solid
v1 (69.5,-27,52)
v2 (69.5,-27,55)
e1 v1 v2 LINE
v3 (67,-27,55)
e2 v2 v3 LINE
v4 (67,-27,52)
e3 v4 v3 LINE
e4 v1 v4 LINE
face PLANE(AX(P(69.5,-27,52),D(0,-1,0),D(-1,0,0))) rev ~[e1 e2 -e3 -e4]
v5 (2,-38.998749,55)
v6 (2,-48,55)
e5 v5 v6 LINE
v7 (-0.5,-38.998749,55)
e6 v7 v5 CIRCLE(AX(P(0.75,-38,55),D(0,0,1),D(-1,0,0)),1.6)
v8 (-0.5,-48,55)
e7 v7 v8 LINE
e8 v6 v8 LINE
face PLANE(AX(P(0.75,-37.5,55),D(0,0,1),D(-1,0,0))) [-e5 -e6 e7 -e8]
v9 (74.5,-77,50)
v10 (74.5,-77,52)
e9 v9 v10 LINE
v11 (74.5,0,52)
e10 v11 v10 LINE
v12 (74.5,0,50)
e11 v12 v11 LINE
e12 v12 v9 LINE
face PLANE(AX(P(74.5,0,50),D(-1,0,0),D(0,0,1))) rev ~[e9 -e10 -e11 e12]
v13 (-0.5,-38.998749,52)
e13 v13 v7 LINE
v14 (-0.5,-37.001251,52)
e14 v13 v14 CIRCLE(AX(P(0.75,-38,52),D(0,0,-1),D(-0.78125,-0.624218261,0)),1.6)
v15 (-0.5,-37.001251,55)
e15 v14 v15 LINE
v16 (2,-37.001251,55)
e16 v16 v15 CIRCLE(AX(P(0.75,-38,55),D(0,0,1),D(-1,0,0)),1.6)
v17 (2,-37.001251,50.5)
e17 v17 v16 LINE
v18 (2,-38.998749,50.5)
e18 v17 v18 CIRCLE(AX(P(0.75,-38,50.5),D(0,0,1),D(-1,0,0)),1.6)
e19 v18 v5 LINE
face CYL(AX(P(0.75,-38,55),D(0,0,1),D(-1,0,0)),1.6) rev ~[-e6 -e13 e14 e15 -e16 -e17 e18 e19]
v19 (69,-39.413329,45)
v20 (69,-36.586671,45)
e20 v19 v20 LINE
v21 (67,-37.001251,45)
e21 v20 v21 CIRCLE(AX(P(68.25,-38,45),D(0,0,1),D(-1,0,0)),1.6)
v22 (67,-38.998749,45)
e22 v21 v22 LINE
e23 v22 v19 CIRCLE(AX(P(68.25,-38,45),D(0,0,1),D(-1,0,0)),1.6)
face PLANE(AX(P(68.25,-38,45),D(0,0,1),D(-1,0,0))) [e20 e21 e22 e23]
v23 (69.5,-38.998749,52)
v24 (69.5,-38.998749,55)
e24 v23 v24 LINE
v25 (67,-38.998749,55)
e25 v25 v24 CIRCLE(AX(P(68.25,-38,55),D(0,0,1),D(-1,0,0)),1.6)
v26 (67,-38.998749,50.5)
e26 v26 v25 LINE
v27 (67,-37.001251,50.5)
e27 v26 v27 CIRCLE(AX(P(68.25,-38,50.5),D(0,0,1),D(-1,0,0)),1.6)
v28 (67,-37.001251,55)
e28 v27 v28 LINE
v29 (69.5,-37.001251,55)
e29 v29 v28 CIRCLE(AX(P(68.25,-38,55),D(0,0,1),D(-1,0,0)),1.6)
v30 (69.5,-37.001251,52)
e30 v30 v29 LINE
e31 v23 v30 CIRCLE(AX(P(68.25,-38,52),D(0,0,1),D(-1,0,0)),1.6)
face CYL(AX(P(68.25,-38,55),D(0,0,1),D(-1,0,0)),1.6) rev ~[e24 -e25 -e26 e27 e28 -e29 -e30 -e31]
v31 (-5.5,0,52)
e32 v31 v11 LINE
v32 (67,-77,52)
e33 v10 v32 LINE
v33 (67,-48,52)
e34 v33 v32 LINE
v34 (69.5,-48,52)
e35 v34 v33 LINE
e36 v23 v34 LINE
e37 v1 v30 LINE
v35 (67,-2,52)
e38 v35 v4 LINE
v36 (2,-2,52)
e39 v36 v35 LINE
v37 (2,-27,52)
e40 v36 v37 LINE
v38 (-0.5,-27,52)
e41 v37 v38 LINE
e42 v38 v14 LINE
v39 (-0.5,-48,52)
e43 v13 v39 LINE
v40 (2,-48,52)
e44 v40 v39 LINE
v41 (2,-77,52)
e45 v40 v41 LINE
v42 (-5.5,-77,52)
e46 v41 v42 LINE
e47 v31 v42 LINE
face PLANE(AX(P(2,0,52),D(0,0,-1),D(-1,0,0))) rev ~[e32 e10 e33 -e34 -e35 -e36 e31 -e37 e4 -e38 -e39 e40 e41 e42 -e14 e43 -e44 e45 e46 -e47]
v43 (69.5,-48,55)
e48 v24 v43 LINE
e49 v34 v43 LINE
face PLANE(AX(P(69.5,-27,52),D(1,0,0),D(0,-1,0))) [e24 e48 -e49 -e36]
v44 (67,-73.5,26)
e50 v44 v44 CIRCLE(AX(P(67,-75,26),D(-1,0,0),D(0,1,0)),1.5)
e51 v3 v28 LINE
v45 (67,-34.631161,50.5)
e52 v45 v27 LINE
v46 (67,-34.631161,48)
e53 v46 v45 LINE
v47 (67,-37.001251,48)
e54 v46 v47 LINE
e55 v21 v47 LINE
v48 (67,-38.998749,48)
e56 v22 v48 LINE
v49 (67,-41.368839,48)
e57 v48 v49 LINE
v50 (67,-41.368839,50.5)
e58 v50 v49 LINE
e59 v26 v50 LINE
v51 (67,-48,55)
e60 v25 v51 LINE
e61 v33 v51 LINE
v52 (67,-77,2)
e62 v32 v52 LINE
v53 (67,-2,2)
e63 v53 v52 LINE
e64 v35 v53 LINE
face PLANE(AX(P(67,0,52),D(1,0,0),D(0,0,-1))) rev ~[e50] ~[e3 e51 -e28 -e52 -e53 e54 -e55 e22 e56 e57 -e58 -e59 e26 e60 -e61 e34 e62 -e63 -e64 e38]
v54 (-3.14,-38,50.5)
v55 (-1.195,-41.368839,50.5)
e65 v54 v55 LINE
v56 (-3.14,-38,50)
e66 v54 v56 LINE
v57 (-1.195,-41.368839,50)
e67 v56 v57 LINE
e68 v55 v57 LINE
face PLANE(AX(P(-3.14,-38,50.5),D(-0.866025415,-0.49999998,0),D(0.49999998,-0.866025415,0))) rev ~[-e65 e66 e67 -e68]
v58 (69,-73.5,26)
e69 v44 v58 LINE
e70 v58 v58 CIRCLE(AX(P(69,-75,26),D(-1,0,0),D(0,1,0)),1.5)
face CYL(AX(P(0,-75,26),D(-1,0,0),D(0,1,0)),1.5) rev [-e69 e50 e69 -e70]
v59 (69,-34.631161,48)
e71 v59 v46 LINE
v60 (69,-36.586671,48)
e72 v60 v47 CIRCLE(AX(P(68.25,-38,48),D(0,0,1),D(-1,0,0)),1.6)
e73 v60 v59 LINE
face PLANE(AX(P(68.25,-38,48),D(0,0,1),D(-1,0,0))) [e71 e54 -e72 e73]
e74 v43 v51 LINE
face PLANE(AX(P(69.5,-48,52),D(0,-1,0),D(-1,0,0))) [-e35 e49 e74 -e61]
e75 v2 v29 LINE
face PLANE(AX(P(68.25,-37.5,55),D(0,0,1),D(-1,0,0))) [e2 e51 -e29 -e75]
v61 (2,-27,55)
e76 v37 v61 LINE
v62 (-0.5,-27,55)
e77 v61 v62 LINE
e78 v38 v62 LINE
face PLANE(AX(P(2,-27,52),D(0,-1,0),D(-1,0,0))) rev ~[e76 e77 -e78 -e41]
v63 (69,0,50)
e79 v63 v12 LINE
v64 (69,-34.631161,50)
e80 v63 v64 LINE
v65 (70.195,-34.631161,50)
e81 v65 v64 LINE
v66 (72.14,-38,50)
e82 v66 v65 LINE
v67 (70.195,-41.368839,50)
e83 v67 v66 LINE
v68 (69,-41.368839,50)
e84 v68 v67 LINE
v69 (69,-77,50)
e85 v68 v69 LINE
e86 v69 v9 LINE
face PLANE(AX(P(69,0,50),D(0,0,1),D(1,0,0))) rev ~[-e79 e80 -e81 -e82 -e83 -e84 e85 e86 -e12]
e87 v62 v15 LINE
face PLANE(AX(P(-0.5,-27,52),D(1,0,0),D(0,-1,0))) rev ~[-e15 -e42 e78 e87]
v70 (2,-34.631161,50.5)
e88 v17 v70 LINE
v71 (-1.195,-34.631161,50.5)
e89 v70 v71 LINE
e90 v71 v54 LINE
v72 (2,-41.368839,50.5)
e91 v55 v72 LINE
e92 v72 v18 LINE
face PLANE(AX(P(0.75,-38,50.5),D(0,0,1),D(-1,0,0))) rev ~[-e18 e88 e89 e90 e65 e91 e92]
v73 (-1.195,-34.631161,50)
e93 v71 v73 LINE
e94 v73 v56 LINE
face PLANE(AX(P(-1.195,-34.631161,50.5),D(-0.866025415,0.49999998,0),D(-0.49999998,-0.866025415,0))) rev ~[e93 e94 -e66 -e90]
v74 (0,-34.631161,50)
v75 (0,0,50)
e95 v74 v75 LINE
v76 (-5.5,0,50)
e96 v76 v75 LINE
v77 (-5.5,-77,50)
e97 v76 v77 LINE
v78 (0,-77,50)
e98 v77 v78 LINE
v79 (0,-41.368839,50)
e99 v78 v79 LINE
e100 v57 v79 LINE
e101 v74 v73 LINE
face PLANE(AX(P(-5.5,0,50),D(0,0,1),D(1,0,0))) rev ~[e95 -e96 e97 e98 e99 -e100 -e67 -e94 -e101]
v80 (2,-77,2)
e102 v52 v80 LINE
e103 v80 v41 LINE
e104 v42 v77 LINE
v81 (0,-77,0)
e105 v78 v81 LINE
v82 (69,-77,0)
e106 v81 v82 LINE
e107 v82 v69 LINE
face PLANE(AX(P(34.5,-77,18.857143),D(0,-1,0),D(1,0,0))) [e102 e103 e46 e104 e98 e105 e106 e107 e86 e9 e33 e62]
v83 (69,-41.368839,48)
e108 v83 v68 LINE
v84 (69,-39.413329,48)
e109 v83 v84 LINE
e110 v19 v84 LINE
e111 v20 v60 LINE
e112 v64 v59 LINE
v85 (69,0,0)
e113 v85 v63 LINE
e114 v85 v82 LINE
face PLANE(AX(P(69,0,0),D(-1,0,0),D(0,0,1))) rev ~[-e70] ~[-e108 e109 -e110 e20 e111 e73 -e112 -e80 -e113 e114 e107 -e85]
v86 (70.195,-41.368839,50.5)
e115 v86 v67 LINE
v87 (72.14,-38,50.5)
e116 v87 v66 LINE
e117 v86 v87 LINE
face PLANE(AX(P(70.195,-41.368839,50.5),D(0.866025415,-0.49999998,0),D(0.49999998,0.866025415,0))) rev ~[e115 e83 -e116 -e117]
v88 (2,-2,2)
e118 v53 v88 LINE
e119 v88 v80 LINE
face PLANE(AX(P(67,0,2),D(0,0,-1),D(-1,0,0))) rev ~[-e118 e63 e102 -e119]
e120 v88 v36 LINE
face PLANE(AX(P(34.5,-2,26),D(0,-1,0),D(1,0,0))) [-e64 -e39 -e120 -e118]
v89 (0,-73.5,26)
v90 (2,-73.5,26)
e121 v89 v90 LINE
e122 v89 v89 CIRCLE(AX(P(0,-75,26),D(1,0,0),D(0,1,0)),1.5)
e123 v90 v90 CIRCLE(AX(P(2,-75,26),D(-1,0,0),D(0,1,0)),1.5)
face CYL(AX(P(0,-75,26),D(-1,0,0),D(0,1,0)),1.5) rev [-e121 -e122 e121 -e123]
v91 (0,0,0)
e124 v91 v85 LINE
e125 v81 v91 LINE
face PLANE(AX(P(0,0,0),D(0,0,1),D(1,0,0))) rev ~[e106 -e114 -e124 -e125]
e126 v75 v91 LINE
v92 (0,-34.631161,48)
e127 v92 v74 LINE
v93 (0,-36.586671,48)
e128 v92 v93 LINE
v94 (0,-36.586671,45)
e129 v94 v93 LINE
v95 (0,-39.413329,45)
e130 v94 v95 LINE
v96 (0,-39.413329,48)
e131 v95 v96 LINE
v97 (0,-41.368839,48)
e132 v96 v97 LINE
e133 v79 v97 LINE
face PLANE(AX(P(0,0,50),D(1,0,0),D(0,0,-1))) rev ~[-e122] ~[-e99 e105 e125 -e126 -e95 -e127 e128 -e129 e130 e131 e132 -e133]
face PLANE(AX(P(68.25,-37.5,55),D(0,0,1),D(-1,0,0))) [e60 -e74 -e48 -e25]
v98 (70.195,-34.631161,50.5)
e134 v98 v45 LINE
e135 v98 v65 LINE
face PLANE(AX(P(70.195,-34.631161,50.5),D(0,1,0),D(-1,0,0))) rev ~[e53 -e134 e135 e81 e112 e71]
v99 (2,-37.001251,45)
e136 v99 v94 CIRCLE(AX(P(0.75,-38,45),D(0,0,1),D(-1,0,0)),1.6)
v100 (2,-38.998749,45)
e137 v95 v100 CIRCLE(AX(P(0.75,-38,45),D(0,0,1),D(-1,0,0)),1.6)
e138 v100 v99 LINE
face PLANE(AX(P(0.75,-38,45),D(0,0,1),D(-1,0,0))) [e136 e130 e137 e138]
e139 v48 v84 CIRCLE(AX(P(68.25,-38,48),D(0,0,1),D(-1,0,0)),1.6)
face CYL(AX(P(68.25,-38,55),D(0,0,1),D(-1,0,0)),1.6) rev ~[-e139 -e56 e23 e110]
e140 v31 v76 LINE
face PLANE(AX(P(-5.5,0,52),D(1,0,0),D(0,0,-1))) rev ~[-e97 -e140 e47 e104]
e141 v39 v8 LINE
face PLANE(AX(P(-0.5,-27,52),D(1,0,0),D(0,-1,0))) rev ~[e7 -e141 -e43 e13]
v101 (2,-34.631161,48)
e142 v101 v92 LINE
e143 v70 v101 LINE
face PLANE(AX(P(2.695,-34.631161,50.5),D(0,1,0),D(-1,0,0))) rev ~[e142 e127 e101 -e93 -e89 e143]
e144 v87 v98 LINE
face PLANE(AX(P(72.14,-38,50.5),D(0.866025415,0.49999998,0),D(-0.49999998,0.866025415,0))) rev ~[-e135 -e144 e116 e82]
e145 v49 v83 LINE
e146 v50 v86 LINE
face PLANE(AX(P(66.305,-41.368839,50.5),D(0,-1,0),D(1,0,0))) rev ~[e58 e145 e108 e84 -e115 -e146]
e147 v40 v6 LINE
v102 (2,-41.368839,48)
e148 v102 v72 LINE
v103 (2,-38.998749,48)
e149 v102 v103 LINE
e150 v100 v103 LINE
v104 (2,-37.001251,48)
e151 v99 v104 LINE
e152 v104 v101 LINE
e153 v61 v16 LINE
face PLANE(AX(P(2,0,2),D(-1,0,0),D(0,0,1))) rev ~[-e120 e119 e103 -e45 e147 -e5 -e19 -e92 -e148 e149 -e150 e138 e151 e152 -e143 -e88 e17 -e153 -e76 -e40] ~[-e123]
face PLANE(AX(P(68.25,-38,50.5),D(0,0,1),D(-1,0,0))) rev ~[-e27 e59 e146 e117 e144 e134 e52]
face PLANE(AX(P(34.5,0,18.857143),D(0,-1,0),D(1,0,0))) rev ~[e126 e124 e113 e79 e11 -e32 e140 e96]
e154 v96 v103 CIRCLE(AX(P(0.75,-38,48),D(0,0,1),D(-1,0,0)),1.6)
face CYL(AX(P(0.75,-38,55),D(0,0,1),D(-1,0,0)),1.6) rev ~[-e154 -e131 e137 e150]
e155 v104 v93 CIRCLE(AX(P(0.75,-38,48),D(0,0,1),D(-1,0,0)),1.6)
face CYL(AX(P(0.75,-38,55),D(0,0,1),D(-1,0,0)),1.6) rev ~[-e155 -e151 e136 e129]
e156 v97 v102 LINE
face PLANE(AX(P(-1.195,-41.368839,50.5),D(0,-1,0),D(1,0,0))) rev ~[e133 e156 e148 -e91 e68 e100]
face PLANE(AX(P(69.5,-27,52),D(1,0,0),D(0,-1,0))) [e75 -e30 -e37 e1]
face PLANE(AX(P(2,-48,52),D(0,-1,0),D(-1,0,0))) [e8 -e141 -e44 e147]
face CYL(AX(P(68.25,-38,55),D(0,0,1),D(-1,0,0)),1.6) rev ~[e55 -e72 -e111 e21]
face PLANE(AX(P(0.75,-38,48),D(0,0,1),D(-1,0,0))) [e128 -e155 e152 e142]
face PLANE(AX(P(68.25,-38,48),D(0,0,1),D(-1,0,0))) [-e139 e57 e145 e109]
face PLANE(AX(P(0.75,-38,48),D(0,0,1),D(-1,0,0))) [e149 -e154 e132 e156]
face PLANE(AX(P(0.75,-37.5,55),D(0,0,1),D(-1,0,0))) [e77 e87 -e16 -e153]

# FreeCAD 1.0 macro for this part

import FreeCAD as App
import Part
import Sketcher
Q = App.Units.Quantity


def add_polygon(sketch, points):
    """Adds a closed chain of lines whose ends are joined by coincident constraints."""
    first, n = sketch.GeometryCount, len(points)
    for a, b in zip(points, points[1:] + points[:1]):
        sketch.addGeometry(Part.LineSegment(App.Vector(*a, 0), App.Vector(*b, 0)), False)
    for i in range(n):
        sketch.addConstraint(Sketcher.Constraint("Coincident", first + i, 2, first + (i + 1) % n, 1))

doc = App.newDocument("Part")
params = doc.addObject("Spreadsheet::Sheet", "Params")
for row, (alias, value) in enumerate([
    ("sketch1_width", "69 mm"),
    ("sketch1_width2", "65 mm"),
    ("sketch1_height", "50 mm"),
    ("sketch1_height2", "2 mm"),
    ("sketch1_width3", "5.5 mm"),
    ("pad1_length", "77 mm"),
    ("sketch2_width", "69 mm"),
    ("sketch2_height", "52 mm"),
    ("pad2_length", "2 mm"),
    ("sketch3_diameter", "3 mm"),
    ("sketch4_height", "21 mm"),
    ("sketch4_width", "2.5 mm"),
    ("pad3_length", "3 mm"),
    ("sketch5_diameter", "3.2 mm"),
    ("pocket2_length", "10 mm"),
    ("sketch6_width", "3.89 mm"),
    ("sketch6_length", "3.89 mm"),
    ("pocket3_length", "2.5 mm"),
], start=1):
    params.set(f"A{row}", alias)
    params.set(f"B{row}", "=" + value)
    params.setAlias(f"B{row}", alias)

body = doc.addObject("PartDesign::Body", "Body")

# Sketch on XZ plane
sketch1 = body.newObject("Sketcher::SketchObject", "Sketch")
sketch1.AttachmentSupport = (doc.getObject("XZ_Plane"), [""])
sketch1.MapMode = "FlatFace"
add_polygon(sketch1, [(0, 0), (69, 0), (69, 50), (74.5, 50), (74.5, 52), (67, 52), (67, 2), (2, 2), (2, 52), (-5.5, 52), (-5.5, 50), (0, 50)])  # lines 0-11
sketch1.addConstraint([
    Sketcher.Constraint("Horizontal", 0),
    Sketcher.Constraint("Vertical", 1),
    Sketcher.Constraint("Horizontal", 2),
    Sketcher.Constraint("Vertical", 3),
    Sketcher.Constraint("Horizontal", 4),
    Sketcher.Constraint("Vertical", 5),
    Sketcher.Constraint("Horizontal", 6),
    Sketcher.Constraint("Vertical", 7),
    Sketcher.Constraint("Horizontal", 8),
    Sketcher.Constraint("Vertical", 9),
    Sketcher.Constraint("Horizontal", 10),
    Sketcher.Constraint("Vertical", 11),
    Sketcher.Constraint("Coincident", 11, 2, -1, 1),
    Sketcher.Constraint("Horizontal", 4, 2, 7, 2),
    Sketcher.Constraint("Horizontal", 2, 2, 9, 2),
    Sketcher.Constraint("Equal", 4, 8),
    Sketcher.Constraint("Equal", 2, 10),
    Sketcher.Constraint("Equal", 1, 5),
    Sketcher.Constraint("DistanceX", 0, 1, 0, 2, 69.0),
    Sketcher.Constraint("DistanceX", 6, 2, 6, 1, 65.0),
    Sketcher.Constraint("DistanceY", 1, 1, 1, 2, 50.0),
    Sketcher.Constraint("DistanceY", 3, 1, 3, 2, 2.0),
    Sketcher.Constraint("DistanceX", 2, 1, 2, 2, 5.5),
])
sketch1.setExpression("Constraints[30]", "Params.sketch1_width")
sketch1.setExpression("Constraints[31]", "Params.sketch1_width2")
sketch1.setExpression("Constraints[32]", "Params.sketch1_height")
sketch1.setExpression("Constraints[33]", "Params.sketch1_height2")
sketch1.setExpression("Constraints[34]", "Params.sketch1_width3")
pad1 = body.newObject("PartDesign::Pad", "Pad")
pad1.Profile = sketch1
pad1.setExpression("Length", "Params.pad1_length")

# Sketch on XZ plane
sketch2 = body.newObject("Sketcher::SketchObject", "Sketch001")
sketch2.AttachmentSupport = (doc.getObject("XZ_Plane"), [""])
sketch2.MapMode = "FlatFace"
add_polygon(sketch2, [(0, 52), (0, 0), (69, 0), (69, 52)])  # lines 0-3
sketch2.addConstraint([
    Sketcher.Constraint("Vertical", 0),
    Sketcher.Constraint("Horizontal", 1),
    Sketcher.Constraint("Vertical", 2),
    Sketcher.Constraint("Horizontal", 3),
    Sketcher.Constraint("Coincident", 0, 2, -1, 1),
    Sketcher.Constraint("DistanceX", 1, 1, 1, 2, 69.0),
    Sketcher.Constraint("DistanceY", 0, 2, 0, 1, 52.0),
])
sketch2.setExpression("Constraints[9]", "Params.sketch2_width")
sketch2.setExpression("Constraints[10]", "Params.sketch2_height")
pad2 = body.newObject("PartDesign::Pad", "Pad001")
pad2.Profile = sketch2
pad2.setExpression("Length", "Params.pad2_length")

# Sketch on YZ plane
sketch3 = body.newObject("Sketcher::SketchObject", "Sketch002")
sketch3.AttachmentSupport = (doc.getObject("YZ_Plane"), [""])
sketch3.MapMode = "FlatFace"
sketch3.addGeometry(Part.Circle(App.Vector(-75, 26, 0), App.Vector(0, 0, 1), 1.5), False)
sketch3.addConstraint([
    Sketcher.Constraint("Diameter", 0, 3.0),
    Sketcher.Constraint("DistanceX", 0, 3, -1, 1, 75.0),
    Sketcher.Constraint("DistanceY", -1, 1, 0, 3, 26.0),
])
sketch3.setExpression("Constraints[0]", "Params.sketch3_diameter")
pocket1 = body.newObject("PartDesign::Pocket", "Pocket")
pocket1.Profile = sketch3
pocket1.Type = "ThroughAll"
pocket1.Midplane = True

# Sketch on XY plane
sketch4 = body.newObject("Sketcher::SketchObject", "Sketch003")
sketch4.AttachmentSupport = (doc.getObject("XY_Plane"), [""])
sketch4.MapMode = "FlatFace"
sketch4.AttachmentOffset = App.Placement(App.Vector(0, 0, 52), App.Rotation())
add_polygon(sketch4, [(69.5, -48), (69.5, -27), (67, -27), (67, -48)])  # lines 0-3
add_polygon(sketch4, [(2, -48), (2, -27), (-0.5, -27), (-0.5, -48)])  # lines 4-7
sketch4.addConstraint([
    Sketcher.Constraint("Vertical", 0),
    Sketcher.Constraint("Horizontal", 1),
    Sketcher.Constraint("Vertical", 2),
    Sketcher.Constraint("Horizontal", 3),
    Sketcher.Constraint("Vertical", 4),
    Sketcher.Constraint("Horizontal", 5),
    Sketcher.Constraint("Vertical", 6),
    Sketcher.Constraint("Horizontal", 7),
    Sketcher.Constraint("Horizontal", 1, 2, 4, 2),
    Sketcher.Constraint("Horizontal", 3, 2, 6, 2),
    Sketcher.Constraint("Equal", 3, 5),
    Sketcher.Constraint("DistanceY", 0, 1, 0, 2, 21.0),
    Sketcher.Constraint("DistanceX", 1, 2, 1, 1, 2.5),
    Sketcher.Constraint("DistanceY", 0, 2, -1, 1, 27.0),
    Sketcher.Constraint("DistanceX", -1, 1, 1, 2, 67.0),
    Sketcher.Constraint("DistanceX", -1, 1, 4, 2, 2.0),
])
sketch4.setExpression("Constraints[19]", "Params.sketch4_height")
sketch4.setExpression("Constraints[20]", "Params.sketch4_width")
pad3 = body.newObject("PartDesign::Pad", "Pad002")
pad3.Profile = sketch4
pad3.setExpression("Length", "Params.pad3_length")

# Sketch on XY plane
sketch5 = body.newObject("Sketcher::SketchObject", "Sketch004")
sketch5.AttachmentSupport = (doc.getObject("XY_Plane"), [""])
sketch5.MapMode = "FlatFace"
sketch5.AttachmentOffset = App.Placement(App.Vector(0, 0, 55), App.Rotation())
sketch5.addGeometry([
    Part.Circle(App.Vector(68.2, -38, 0), App.Vector(0, 0, 1), 1.6),
    Part.Circle(App.Vector(0.8, -38, 0), App.Vector(0, 0, 1), 1.6),
], False)
sketch5.addConstraint([
    Sketcher.Constraint("Equal", 0, 1),
    Sketcher.Constraint("Horizontal", 0, 3, 1, 3),
    Sketcher.Constraint("Diameter", 0, 3.2),
    Sketcher.Constraint("DistanceY", 0, 3, -1, 1, 38.0),
    Sketcher.Constraint("DistanceX", 1, 3, 0, 3, 67.5),
    Sketcher.Constraint("DistanceX", -1, 1, 0, 3, 68.25),
])
sketch5.setExpression("Constraints[2]", "Params.sketch5_diameter")
pocket2 = body.newObject("PartDesign::Pocket", "Pocket001")
pocket2.Profile = sketch5
pocket2.setExpression("Length", "Params.pocket2_length")

# Sketch on XY plane
sketch6 = body.newObject("Sketcher::SketchObject", "Sketch005")
sketch6.AttachmentSupport = (doc.getObject("XY_Plane"), [""])
sketch6.MapMode = "FlatFace"
sketch6.AttachmentOffset = App.Placement(App.Vector(0, 0, 50.5), App.Rotation())
add_polygon(sketch6, [(-1.2, -34.6), (-3.1, -38), (-1.2, -41.4), (2.7, -41.4), (4.6, -38), (2.7, -34.6)])  # lines 0-5
add_polygon(sketch6, [(66.3, -34.6), (64.4, -38), (66.3, -41.4), (70.2, -41.4), (72.1, -38), (70.2, -34.6)])  # lines 6-11
sketch6.addConstraint([
    Sketcher.Constraint("Horizontal", 2),
    Sketcher.Constraint("Horizontal", 5),
    Sketcher.Constraint("Horizontal", 8),
    Sketcher.Constraint("Horizontal", 11),
    Sketcher.Constraint("Parallel", 0, 3),
    Sketcher.Constraint("Parallel", 1, 4),
    Sketcher.Constraint("Parallel", 3, 6),
    Sketcher.Constraint("Parallel", 4, 7),
    Sketcher.Constraint("Parallel", 6, 9),
    Sketcher.Constraint("Parallel", 7, 10),
    Sketcher.Constraint("Horizontal", 0, 2, 3, 2),
    Sketcher.Constraint("Horizontal", 3, 2, 6, 2),
    Sketcher.Constraint("Horizontal", 2, 2, 7, 2),
    Sketcher.Constraint("Horizontal", 6, 2, 9, 2),
    Sketcher.Constraint("Horizontal", 5, 2, 10, 2),
    Sketcher.Constraint("Vertical", 2, 2, 4, 2),
    Sketcher.Constraint("Vertical", 1, 2, 5, 2),
    Sketcher.Constraint("Equal", 5, 8),
    Sketcher.Constraint("Angle", 0, Q("-119.999999 deg")),
    Sketcher.Constraint("DistanceY", 0, 2, -1, 1, 38.0),
    Sketcher.Constraint("DistanceX", 2, 1, 2, 2, 3.89),
    Sketcher.Constraint("DistanceX", 1, 2, 7, 2, 67.5),
    Sketcher.Constraint("Distance", 0, 3.89),
    Sketcher.Constraint("DistanceX", 0, 2, -1, 1, 3.14),
])
sketch6.setExpression("Constraints[32]", "Params.sketch6_width")
sketch6.setExpression("Constraints[34]", "Params.sketch6_length")
pocket3 = body.newObject("PartDesign::Pocket", "Pocket002")
pocket3.Profile = sketch6
pocket3.setExpression("Length", "Params.pocket3_length")

doc.recompute()
